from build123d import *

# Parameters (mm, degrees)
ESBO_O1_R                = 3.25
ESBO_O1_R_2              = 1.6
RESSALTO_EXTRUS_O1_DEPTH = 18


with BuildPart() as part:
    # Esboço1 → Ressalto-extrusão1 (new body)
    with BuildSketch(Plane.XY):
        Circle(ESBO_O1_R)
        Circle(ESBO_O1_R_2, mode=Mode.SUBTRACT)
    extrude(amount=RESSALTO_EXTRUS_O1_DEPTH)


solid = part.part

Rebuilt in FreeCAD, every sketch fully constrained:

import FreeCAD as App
import Part
import Sketcher

V = App.Vector

doc = App.newDocument("Part")
body = doc.addObject("PartDesign::Body", "Body")

sketch1 = body.newObject("Sketcher::SketchObject", "Sketch")
sketch1.AttachmentSupport = (doc.getObject("XY_Plane"), [""])
sketch1.MapMode = "FlatFace"
sketch1.addGeometry([
    Part.Circle(V(0, 0, 0), V(0, 0, 1), 3.25),
    Part.Circle(V(0, 0, 0), V(0, 0, 1), 1.6),
], False)
sketch1.addConstraint([
    Sketcher.Constraint("Coincident", 0, 3, -1, 1),
    Sketcher.Constraint("Coincident", 1, 3, -1, 1),
    Sketcher.Constraint("Diameter", 0, 6.5),
    Sketcher.Constraint("Diameter", 1, 3.2),
])
pad1 = body.newObject("PartDesign::Pad", "Pad")
pad1.Profile = sketch1
pad1.Length = 18

doc.recompute()
